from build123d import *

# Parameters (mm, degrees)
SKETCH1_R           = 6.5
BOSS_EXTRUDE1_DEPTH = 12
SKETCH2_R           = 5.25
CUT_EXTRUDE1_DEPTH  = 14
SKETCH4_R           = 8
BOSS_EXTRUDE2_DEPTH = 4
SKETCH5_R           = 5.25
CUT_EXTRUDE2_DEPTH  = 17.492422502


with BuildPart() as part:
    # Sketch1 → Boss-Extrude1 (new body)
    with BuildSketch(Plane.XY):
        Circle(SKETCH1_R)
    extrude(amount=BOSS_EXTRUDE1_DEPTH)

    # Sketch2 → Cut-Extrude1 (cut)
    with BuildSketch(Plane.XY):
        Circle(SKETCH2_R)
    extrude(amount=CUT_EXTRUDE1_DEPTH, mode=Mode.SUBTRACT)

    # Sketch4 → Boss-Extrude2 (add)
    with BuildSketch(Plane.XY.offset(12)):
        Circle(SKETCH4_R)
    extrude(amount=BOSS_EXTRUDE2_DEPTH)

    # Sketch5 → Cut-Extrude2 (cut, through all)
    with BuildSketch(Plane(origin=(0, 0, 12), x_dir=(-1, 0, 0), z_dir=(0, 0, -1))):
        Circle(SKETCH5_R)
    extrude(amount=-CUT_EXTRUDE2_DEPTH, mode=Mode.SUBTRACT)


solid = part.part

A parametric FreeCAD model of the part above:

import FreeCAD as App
import Part
import Sketcher

V = App.Vector
Q = App.Units.Quantity

doc = App.newDocument("Part")
body = doc.addObject("PartDesign::Body", "Body")

# Sketch on XY plane
sketch1 = body.newObject("Sketcher::SketchObject", "Sketch")
sketch1.AttachmentSupport = (doc.getObject("XY_Plane"), [""])
sketch1.MapMode = "FlatFace"
sketch1.addGeometry(Part.Circle(V(0, 0, 0), V(0, 0, 1), 6), False)
sketch1.addConstraint([
    Sketcher.Constraint("Coincident", 0, 3, -1, 1),
    Sketcher.Constraint("Diameter", 0, Q("13 mm")),
])
pad1 = body.newObject("PartDesign::Pad", "Pad")
pad1.Profile = sketch1
pad1.Length = 12

# Sketch on XY plane
sketch2 = body.newObject("Sketcher::SketchObject", "Sketch001")
sketch2.AttachmentSupport = (doc.getObject("XY_Plane"), [""])
sketch2.MapMode = "FlatFace"
sketch2.addGeometry(Part.Circle(V(0, 0, 0), V(0, 0, 1), 5), False)
sketch2.addConstraint([
    Sketcher.Constraint("Coincident", 0, 3, -1, 1),
    Sketcher.Constraint("Diameter", 0, Q("10.5 mm")),
])
pocket1 = body.newObject("PartDesign::Pocket", "Pocket")
pocket1.Profile = sketch2
pocket1.Length = 14
pocket1.Reversed = True

# Sketch on XY plane
sketch3 = body.newObject("Sketcher::SketchObject", "Sketch002")
sketch3.AttachmentSupport = (doc.getObject("XY_Plane"), [""])
sketch3.MapMode = "FlatFace"
sketch3.AttachmentOffset = App.Placement(V(0, 0, 12), App.Rotation())
sketch3.addGeometry(Part.Circle(V(0, 0, 0), V(0, 0, 1), 8), False)
sketch3.addConstraint([
    Sketcher.Constraint("Coincident", 0, 3, -1, 1),
    Sketcher.Constraint("Diameter", 0, Q("16 mm")),
])
pad2 = body.newObject("PartDesign::Pad", "Pad001")
pad2.Profile = sketch3
pad2.Length = 4

# Sketch on XY plane
sketch4 = body.newObject("Sketcher::SketchObject", "Sketch003")
sketch4.AttachmentSupport = (doc.getObject("XY_Plane"), [""])
sketch4.MapMode = "FlatFace"
sketch4.AttachmentOffset = App.Placement(V(0, 0, 12), App.Rotation())
sketch4.addGeometry(Part.Circle(V(0, 0, 0), V(0, 0, 1), 5), False)
sketch4.addConstraint([
    Sketcher.Constraint("Coincident", 0, 3, -1, 1),
    Sketcher.Constraint("Diameter", 0, Q("10.5 mm")),
])
pocket2 = body.newObject("PartDesign::Pocket", "Pocket001")
pocket2.Profile = sketch4
pocket2.Type = "ThroughAll"
pocket2.Reversed = True

doc.recompute()
